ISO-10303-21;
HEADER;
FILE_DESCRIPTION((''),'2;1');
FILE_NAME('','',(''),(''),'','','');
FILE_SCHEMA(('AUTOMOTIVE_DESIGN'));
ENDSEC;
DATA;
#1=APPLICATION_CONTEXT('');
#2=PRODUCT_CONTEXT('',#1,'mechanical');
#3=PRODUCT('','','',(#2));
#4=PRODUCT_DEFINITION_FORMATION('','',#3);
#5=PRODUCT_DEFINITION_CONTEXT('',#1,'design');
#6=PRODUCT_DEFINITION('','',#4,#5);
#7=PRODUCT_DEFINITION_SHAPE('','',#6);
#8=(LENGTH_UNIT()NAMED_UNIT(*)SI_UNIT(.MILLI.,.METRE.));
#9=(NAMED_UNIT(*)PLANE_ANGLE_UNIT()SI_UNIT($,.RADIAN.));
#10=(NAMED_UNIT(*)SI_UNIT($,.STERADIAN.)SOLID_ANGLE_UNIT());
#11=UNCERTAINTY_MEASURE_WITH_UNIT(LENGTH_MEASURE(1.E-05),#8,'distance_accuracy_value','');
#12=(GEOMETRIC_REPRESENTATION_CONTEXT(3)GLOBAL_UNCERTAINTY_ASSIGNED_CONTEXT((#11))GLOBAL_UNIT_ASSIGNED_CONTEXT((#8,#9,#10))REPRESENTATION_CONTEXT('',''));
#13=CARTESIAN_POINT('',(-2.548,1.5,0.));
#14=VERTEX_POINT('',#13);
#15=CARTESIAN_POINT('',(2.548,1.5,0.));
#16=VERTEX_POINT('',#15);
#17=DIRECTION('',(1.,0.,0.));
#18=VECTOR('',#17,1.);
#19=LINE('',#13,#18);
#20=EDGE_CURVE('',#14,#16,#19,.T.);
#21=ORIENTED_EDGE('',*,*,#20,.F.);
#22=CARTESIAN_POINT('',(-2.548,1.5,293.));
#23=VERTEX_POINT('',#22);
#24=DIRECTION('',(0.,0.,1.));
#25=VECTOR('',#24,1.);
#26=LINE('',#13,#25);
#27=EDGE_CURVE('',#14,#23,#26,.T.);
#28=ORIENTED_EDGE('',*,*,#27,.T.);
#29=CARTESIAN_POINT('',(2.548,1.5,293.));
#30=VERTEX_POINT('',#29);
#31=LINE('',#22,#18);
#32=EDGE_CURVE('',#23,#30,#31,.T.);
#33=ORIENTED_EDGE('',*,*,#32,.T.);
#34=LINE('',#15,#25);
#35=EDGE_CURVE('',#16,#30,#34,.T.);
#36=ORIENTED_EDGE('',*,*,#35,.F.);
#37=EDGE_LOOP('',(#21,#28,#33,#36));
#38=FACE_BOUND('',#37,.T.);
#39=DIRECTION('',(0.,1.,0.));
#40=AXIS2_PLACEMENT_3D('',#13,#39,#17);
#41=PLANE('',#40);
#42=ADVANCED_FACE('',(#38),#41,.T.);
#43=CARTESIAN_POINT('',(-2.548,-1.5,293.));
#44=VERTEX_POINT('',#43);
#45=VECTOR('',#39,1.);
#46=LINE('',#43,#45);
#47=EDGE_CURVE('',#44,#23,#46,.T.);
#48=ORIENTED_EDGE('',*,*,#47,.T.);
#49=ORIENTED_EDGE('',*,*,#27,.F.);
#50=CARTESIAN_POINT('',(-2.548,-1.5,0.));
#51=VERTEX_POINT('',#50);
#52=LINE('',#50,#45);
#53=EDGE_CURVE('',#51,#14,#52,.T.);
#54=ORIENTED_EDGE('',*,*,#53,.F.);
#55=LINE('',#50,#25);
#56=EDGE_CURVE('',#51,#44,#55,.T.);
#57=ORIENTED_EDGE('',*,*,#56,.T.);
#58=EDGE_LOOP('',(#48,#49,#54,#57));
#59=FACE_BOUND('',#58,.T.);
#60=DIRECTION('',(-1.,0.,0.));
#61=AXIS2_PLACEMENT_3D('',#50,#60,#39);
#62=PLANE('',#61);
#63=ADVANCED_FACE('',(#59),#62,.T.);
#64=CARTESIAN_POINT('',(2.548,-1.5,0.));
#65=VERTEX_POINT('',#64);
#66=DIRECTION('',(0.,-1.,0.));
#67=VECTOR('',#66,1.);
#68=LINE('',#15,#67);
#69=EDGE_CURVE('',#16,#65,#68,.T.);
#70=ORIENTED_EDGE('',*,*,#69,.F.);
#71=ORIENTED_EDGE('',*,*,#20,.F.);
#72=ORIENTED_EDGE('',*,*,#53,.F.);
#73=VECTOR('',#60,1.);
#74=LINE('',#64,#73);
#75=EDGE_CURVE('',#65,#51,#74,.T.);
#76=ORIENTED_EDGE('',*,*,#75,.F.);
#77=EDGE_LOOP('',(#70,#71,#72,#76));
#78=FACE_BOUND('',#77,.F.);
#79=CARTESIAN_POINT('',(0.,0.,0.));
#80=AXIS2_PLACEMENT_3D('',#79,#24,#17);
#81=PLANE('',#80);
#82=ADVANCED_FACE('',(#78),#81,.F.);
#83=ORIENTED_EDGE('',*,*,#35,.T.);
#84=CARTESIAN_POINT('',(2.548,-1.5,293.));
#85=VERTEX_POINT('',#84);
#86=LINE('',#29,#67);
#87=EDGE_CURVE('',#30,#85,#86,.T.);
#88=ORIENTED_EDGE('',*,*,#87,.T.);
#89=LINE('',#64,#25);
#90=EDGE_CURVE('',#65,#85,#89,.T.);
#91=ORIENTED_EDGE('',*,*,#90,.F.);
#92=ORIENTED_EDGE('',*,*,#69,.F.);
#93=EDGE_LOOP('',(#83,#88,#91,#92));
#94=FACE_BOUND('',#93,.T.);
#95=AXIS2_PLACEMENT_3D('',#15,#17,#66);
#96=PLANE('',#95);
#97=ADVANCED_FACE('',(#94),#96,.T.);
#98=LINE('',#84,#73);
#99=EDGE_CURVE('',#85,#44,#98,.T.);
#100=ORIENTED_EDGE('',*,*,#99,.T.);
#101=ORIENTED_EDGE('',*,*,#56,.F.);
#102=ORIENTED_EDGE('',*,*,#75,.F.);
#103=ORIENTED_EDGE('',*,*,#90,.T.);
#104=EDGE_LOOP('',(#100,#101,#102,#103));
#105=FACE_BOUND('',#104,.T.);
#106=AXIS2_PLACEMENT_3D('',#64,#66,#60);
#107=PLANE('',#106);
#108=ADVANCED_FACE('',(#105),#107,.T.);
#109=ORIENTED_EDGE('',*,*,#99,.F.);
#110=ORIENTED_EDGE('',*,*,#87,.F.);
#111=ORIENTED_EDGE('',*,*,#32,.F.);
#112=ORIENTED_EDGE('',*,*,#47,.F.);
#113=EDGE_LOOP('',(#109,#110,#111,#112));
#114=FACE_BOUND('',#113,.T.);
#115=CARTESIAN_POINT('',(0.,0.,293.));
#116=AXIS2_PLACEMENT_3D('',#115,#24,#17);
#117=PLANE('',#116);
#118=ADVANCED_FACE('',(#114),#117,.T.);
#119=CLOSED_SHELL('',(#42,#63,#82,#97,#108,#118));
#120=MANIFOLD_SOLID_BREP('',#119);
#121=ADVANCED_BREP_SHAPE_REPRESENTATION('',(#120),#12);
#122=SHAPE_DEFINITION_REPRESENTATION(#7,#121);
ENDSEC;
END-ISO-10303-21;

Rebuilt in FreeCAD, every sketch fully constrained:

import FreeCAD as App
import Part
import Sketcher
from FreeCAD import Vector
Q = App.Units.Quantity

doc = App.newDocument("Part")
body = doc.addObject("PartDesign::Body", "Body")

# Sketch on XY plane
sketch1 = doc.addObject("Sketcher::SketchObject", "Sketch")
body.addObject(sketch1)
sketch1.AttachmentSupport = (doc.XY_Plane, [""])
sketch1.MapMode = "FlatFace"
sketch1.addGeometry(Part.LineSegment(Vector(2.5, 1.5, 0), Vector(-2.5, 1.5, 0)), False)
sketch1.addGeometry(Part.LineSegment(Vector(-2.5, 1.5, 0), Vector(-2.5, -1.5, 0)), False)
sketch1.addGeometry(Part.LineSegment(Vector(-2.5, -1.5, 0), Vector(2.5, -1.5, 0)), False)
sketch1.addGeometry(Part.LineSegment(Vector(2.5, -1.5, 0), Vector(2.5, 1.5, 0)), False)
sketch1.addConstraint(Sketcher.Constraint("Coincident", 0, 2, 1, 1))
sketch1.addConstraint(Sketcher.Constraint("Coincident", 1, 2, 2, 1))
sketch1.addConstraint(Sketcher.Constraint("Coincident", 2, 2, 3, 1))
sketch1.addConstraint(Sketcher.Constraint("Coincident", 3, 2, 0, 1))
sketch1.addConstraint(Sketcher.Constraint("Horizontal", 0))
sketch1.addConstraint(Sketcher.Constraint("Vertical", 1))
sketch1.addConstraint(Sketcher.Constraint("Horizontal", 2))
sketch1.addConstraint(Sketcher.Constraint("Vertical", 3))
sketch1.addConstraint(Sketcher.Constraint("Symmetric", 0, 2, 2, 2, -1, 1))
sketch1.addConstraint(Sketcher.Constraint("DistanceY", 1, 2, 1, 1, Q("3 mm")))
sketch1.addConstraint(Sketcher.Constraint("DistanceX", 0, 2, 0, 1, Q("5.096 mm")))
pad1 = doc.addObject("PartDesign::Pad", "Pad")
body.addObject(pad1)
pad1.Profile = sketch1
pad1.Length = 293

doc.recompute()
